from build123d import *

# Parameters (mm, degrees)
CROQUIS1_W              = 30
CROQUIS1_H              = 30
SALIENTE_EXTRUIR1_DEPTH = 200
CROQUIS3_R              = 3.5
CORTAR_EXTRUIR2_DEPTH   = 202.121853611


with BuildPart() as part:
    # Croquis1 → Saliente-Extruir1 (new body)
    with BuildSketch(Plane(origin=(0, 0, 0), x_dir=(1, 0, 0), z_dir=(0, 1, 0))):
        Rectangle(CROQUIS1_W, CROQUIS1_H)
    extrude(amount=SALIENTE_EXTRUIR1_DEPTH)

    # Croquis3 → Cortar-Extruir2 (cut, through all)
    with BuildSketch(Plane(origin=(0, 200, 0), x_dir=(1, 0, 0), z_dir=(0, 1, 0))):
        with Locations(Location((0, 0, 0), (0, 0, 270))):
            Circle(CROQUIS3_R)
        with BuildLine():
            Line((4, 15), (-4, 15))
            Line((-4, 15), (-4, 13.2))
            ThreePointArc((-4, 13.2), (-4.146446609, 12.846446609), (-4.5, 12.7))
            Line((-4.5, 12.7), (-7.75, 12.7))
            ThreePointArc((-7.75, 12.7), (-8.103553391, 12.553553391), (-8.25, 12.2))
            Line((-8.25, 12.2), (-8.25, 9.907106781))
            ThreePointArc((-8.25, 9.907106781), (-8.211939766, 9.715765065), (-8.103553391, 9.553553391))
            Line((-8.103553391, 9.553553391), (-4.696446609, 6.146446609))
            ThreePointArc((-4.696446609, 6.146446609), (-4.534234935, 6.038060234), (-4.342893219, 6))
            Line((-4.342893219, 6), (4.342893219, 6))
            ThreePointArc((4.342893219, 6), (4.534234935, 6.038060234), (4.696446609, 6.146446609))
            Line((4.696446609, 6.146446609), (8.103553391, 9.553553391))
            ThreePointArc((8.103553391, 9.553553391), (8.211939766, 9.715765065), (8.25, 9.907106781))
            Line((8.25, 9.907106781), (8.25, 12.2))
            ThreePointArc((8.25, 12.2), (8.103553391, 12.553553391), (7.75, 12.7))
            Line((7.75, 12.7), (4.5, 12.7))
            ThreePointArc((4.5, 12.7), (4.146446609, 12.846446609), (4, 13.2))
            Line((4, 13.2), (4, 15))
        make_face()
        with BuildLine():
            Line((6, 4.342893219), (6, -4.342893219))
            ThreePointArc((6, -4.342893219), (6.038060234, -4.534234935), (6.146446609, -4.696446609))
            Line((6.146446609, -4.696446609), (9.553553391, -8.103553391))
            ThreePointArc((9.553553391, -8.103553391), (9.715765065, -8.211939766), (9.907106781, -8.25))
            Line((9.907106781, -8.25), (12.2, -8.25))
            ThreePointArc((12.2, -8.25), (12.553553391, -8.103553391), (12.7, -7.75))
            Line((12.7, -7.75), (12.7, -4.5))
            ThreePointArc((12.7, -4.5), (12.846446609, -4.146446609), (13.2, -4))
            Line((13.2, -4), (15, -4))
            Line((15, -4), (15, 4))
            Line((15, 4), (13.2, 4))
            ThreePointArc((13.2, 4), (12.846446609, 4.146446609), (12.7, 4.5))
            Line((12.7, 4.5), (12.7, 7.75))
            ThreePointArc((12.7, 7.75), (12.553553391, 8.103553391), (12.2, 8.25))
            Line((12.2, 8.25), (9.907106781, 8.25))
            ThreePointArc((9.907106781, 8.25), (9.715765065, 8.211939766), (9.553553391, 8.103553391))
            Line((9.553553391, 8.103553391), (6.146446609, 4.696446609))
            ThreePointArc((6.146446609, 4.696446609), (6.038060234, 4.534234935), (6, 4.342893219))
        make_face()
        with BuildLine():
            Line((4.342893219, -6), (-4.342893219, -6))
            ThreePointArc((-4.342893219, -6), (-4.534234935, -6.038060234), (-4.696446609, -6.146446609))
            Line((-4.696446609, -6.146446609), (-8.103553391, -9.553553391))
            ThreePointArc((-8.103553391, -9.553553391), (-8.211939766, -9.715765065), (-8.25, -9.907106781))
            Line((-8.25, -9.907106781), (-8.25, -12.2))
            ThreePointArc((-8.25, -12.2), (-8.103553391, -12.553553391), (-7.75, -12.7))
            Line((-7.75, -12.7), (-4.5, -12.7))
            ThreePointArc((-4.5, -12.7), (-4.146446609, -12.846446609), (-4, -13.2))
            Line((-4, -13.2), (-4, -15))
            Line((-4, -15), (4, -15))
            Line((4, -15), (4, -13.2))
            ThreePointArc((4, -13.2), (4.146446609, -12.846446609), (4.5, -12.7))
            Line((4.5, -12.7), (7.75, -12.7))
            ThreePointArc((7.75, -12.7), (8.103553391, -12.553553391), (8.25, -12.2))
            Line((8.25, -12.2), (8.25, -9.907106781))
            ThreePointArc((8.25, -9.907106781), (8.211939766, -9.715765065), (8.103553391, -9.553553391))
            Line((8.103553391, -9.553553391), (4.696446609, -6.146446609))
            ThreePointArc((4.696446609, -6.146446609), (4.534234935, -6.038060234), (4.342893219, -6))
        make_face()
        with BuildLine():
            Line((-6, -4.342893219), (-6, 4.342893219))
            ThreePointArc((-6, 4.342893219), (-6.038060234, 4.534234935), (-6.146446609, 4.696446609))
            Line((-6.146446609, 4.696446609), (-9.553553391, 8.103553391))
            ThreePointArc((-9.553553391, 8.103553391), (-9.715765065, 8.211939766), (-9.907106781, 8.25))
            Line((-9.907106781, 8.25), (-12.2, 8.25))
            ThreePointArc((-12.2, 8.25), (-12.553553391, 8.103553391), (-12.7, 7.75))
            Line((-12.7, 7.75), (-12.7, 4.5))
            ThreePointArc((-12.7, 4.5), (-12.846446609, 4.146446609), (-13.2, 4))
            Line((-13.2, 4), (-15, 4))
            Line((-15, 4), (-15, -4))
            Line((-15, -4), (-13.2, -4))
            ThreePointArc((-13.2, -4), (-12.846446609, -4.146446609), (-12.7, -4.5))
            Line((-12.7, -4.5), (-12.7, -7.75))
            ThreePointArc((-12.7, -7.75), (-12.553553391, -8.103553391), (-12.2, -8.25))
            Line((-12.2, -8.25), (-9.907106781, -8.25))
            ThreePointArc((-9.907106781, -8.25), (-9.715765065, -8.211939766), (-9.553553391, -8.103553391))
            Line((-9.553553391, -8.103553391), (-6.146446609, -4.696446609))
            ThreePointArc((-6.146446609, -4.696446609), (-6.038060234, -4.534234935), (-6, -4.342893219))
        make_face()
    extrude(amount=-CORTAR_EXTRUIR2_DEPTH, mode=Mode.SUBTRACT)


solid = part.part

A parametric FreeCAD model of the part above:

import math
import FreeCAD as App
import Part
import Sketcher

V = App.Vector


def add_polygon(sketch, points):
    """Adds a closed chain of lines whose ends are joined by coincident constraints."""
    first, n = sketch.GeometryCount, len(points)
    for a, b in zip(points, points[1:] + points[:1]):
        sketch.addGeometry(Part.LineSegment(App.Vector(*a, 0), App.Vector(*b, 0)), False)
    for i in range(n):
        sketch.addConstraint(Sketcher.Constraint("Coincident", first + i, 2, first + (i + 1) % n, 1))

doc = App.newDocument("Part")
body = doc.addObject("PartDesign::Body", "Body")

# Sketch on XZ plane
sketch1 = body.newObject("Sketcher::SketchObject", "Sketch")
sketch1.AttachmentSupport = (doc.getObject("XZ_Plane"), [""])
sketch1.MapMode = "FlatFace"
add_polygon(sketch1, [(-15, -15), (-15, 15), (15, 15), (15, -15)])  # lines 0-3
sketch1.addConstraint(Sketcher.Constraint("Vertical", 0))
sketch1.addConstraint(Sketcher.Constraint("Horizontal", 1))
sketch1.addConstraint(Sketcher.Constraint("Vertical", 2))
sketch1.addConstraint(Sketcher.Constraint("Horizontal", 3))
sketch1.addConstraint(Sketcher.Constraint("Symmetric", 0, 2, 2, 2, -1, 1))
sketch1.addConstraint(Sketcher.Constraint("Equal", 3, 0))
sketch1.addConstraint(Sketcher.Constraint("DistanceX", 1, 1, 1, 2, 30.0))
pad1 = body.newObject("PartDesign::Pad", "Pad")
pad1.Profile = sketch1
pad1.Length = 200
pad1.Reversed = True

# Sketch on XZ plane
sketch2 = body.newObject("Sketcher::SketchObject", "Sketch001")
sketch2.AttachmentSupport = (doc.getObject("XZ_Plane"), [""])
sketch2.MapMode = "FlatFace"
sketch2.AttachmentOffset = App.Placement(V(0, 0, -200), App.Rotation())
sketch2.addGeometry(Part.Circle(V(0, 0, 0), V(0, 0, 1), 3.5), False)
sketch2.addGeometry(Part.LineSegment(V(4, -15, 0), V(-4, -15, 0)), False)
sketch2.addGeometry(Part.LineSegment(V(-4, -15, 0), V(-4, -13.2, 0)), False)
sketch2.addGeometry(Part.ArcOfCircle(Part.Circle(V(-4.5, -13.2, 0), V(0, 0, 1), 0.5), math.radians(0), math.radians(90)), False)
sketch2.addGeometry(Part.LineSegment(V(-4.5, -12.7, 0), V(-7.75, -12.7, 0)), False)
sketch2.addGeometry(Part.ArcOfCircle(Part.Circle(V(-7.75, -12.2, 0), V(0, 0, 1), 0.5), math.radians(180), math.radians(270)), False)
sketch2.addGeometry(Part.LineSegment(V(-8.25, -12.2, 0), V(-8.25, -9.91, 0)), False)
sketch2.addGeometry(Part.ArcOfCircle(Part.Circle(V(-7.75, -9.91, 0), V(0, 0, 1), 0.5), math.radians(135), math.radians(180)), False)
sketch2.addGeometry(Part.LineSegment(V(-8.1, -9.55, 0), V(-4.7, -6.15, 0)), False)
sketch2.addGeometry(Part.ArcOfCircle(Part.Circle(V(-4.34, -6.5, 0), V(0, 0, 1), 0.5), math.radians(90), math.radians(135)), False)
sketch2.addGeometry(Part.LineSegment(V(-4.34, -6, 0), V(4.34, -6, 0)), False)
sketch2.addGeometry(Part.ArcOfCircle(Part.Circle(V(4.34, -6.5, 0), V(0, 0, 1), 0.5), math.radians(45), math.radians(90)), False)
sketch2.addGeometry(Part.LineSegment(V(4.7, -6.15, 0), V(8.1, -9.55, 0)), False)
sketch2.addGeometry(Part.ArcOfCircle(Part.Circle(V(7.75, -9.91, 0), V(0, 0, 1), 0.5), math.radians(0), math.radians(45)), False)
sketch2.addGeometry(Part.LineSegment(V(8.25, -9.91, 0), V(8.25, -12.2, 0)), False)
sketch2.addGeometry(Part.ArcOfCircle(Part.Circle(V(7.75, -12.2, 0), V(0, 0, 1), 0.5), math.radians(-90), math.radians(0)), False)
sketch2.addGeometry(Part.LineSegment(V(7.75, -12.7, 0), V(4.5, -12.7, 0)), False)
sketch2.addGeometry(Part.ArcOfCircle(Part.Circle(V(4.5, -13.2, 0), V(0, 0, 1), 0.5), math.radians(90), math.radians(180)), False)
sketch2.addGeometry(Part.LineSegment(V(4, -13.2, 0), V(4, -15, 0)), False)
sketch2.addGeometry(Part.LineSegment(V(6, -4.34, 0), V(6, 4.34, 0)), False)
sketch2.addGeometry(Part.ArcOfCircle(Part.Circle(V(6.5, 4.34, 0), V(0, 0, 1), 0.5), math.radians(135), math.radians(180)), False)
sketch2.addGeometry(Part.LineSegment(V(6.15, 4.7, 0), V(9.55, 8.1, 0)), False)
sketch2.addGeometry(Part.ArcOfCircle(Part.Circle(V(9.91, 7.75, 0), V(0, 0, 1), 0.5), math.radians(90), math.radians(135)), False)
sketch2.addGeometry(Part.LineSegment(V(9.91, 8.25, 0), V(12.2, 8.25, 0)), False)
sketch2.addGeometry(Part.ArcOfCircle(Part.Circle(V(12.2, 7.75, 0), V(0, 0, 1), 0.5), math.radians(0), math.radians(90)), False)
sketch2.addGeometry(Part.LineSegment(V(12.7, 7.75, 0), V(12.7, 4.5, 0)), False)
sketch2.addGeometry(Part.ArcOfCircle(Part.Circle(V(13.2, 4.5, 0), V(0, 0, 1), 0.5), math.radians(180), math.radians(270)), False)
sketch2.addGeometry(Part.LineSegment(V(13.2, 4, 0), V(15, 4, 0)), False)
sketch2.addGeometry(Part.LineSegment(V(15, 4, 0), V(15, -4, 0)), False)
sketch2.addGeometry(Part.LineSegment(V(15, -4, 0), V(13.2, -4, 0)), False)
sketch2.addGeometry(Part.ArcOfCircle(Part.Circle(V(13.2, -4.5, 0), V(0, 0, 1), 0.5), math.radians(90), math.radians(180)), False)
sketch2.addGeometry(Part.LineSegment(V(12.7, -4.5, 0), V(12.7, -7.75, 0)), False)
sketch2.addGeometry(Part.ArcOfCircle(Part.Circle(V(12.2, -7.75, 0), V(0, 0, 1), 0.5), math.radians(-90), math.radians(0)), False)
sketch2.addGeometry(Part.LineSegment(V(12.2, -8.25, 0), V(9.91, -8.25, 0)), False)
sketch2.addGeometry(Part.ArcOfCircle(Part.Circle(V(9.91, -7.75, 0), V(0, 0, 1), 0.5), math.radians(-135), math.radians(-90)), False)
sketch2.addGeometry(Part.LineSegment(V(9.55, -8.1, 0), V(6.15, -4.7, 0)), False)
sketch2.addGeometry(Part.ArcOfCircle(Part.Circle(V(6.5, -4.34, 0), V(0, 0, 1), 0.5), math.radians(-180), math.radians(-135)), False)
sketch2.addGeometry(Part.LineSegment(V(4.34, 6, 0), V(-4.34, 6, 0)), False)
sketch2.addGeometry(Part.ArcOfCircle(Part.Circle(V(-4.34, 6.5, 0), V(0, 0, 1), 0.5), math.radians(-135), math.radians(-90)), False)
sketch2.addGeometry(Part.LineSegment(V(-4.7, 6.15, 0), V(-8.1, 9.55, 0)), False)
sketch2.addGeometry(Part.ArcOfCircle(Part.Circle(V(-7.75, 9.91, 0), V(0, 0, 1), 0.5), math.radians(-180), math.radians(-135)), False)
sketch2.addGeometry(Part.LineSegment(V(-8.25, 9.91, 0), V(-8.25, 12.2, 0)), False)
sketch2.addGeometry(Part.ArcOfCircle(Part.Circle(V(-7.75, 12.2, 0), V(0, 0, 1), 0.5), math.radians(90), math.radians(180)), False)
sketch2.addGeometry(Part.LineSegment(V(-7.75, 12.7, 0), V(-4.5, 12.7, 0)), False)
sketch2.addGeometry(Part.ArcOfCircle(Part.Circle(V(-4.5, 13.2, 0), V(0, 0, 1), 0.5), math.radians(-90), math.radians(0)), False)
sketch2.addGeometry(Part.LineSegment(V(-4, 13.2, 0), V(-4, 15, 0)), False)
sketch2.addGeometry(Part.LineSegment(V(-4, 15, 0), V(4, 15, 0)), False)
sketch2.addGeometry(Part.LineSegment(V(4, 15, 0), V(4, 13.2, 0)), False)
sketch2.addGeometry(Part.ArcOfCircle(Part.Circle(V(4.5, 13.2, 0), V(0, 0, 1), 0.5), math.radians(180), math.radians(270)), False)
sketch2.addGeometry(Part.LineSegment(V(4.5, 12.7, 0), V(7.75, 12.7, 0)), False)
sketch2.addGeometry(Part.ArcOfCircle(Part.Circle(V(7.75, 12.2, 0), V(0, 0, 1), 0.5), math.radians(0), math.radians(90)), False)
sketch2.addGeometry(Part.LineSegment(V(8.25, 12.2, 0), V(8.25, 9.91, 0)), False)
sketch2.addGeometry(Part.ArcOfCircle(Part.Circle(V(7.75, 9.91, 0), V(0, 0, 1), 0.5), math.radians(-45), math.radians(0)), False)
sketch2.addGeometry(Part.LineSegment(V(8.1, 9.55, 0), V(4.7, 6.15, 0)), False)
sketch2.addGeometry(Part.ArcOfCircle(Part.Circle(V(4.34, 6.5, 0), V(0, 0, 1), 0.5), math.radians(-90), math.radians(-45)), False)
sketch2.addGeometry(Part.LineSegment(V(-6, 4.34, 0), V(-6, -4.34, 0)), False)
sketch2.addGeometry(Part.ArcOfCircle(Part.Circle(V(-6.5, -4.34, 0), V(0, 0, 1), 0.5), math.radians(-45), math.radians(0)), False)
sketch2.addGeometry(Part.LineSegment(V(-6.15, -4.7, 0), V(-9.55, -8.1, 0)), False)
sketch2.addGeometry(Part.ArcOfCircle(Part.Circle(V(-9.91, -7.75, 0), V(0, 0, 1), 0.5), math.radians(-90), math.radians(-45)), False)
sketch2.addGeometry(Part.LineSegment(V(-9.91, -8.25, 0), V(-12.2, -8.25, 0)), False)
sketch2.addGeometry(Part.ArcOfCircle(Part.Circle(V(-12.2, -7.75, 0), V(0, 0, 1), 0.5), math.radians(180), math.radians(270)), False)
sketch2.addGeometry(Part.LineSegment(V(-12.7, -7.75, 0), V(-12.7, -4.5, 0)), False)
sketch2.addGeometry(Part.ArcOfCircle(Part.Circle(V(-13.2, -4.5, 0), V(0, 0, 1), 0.5), math.radians(0), math.radians(90)), False)
sketch2.addGeometry(Part.LineSegment(V(-13.2, -4, 0), V(-15, -4, 0)), False)
sketch2.addGeometry(Part.LineSegment(V(-15, -4, 0), V(-15, 4, 0)), False)
sketch2.addGeometry(Part.LineSegment(V(-15, 4, 0), V(-13.2, 4, 0)), False)
sketch2.addGeometry(Part.ArcOfCircle(Part.Circle(V(-13.2, 4.5, 0), V(0, 0, 1), 0.5), math.radians(-90), math.radians(0)), False)
sketch2.addGeometry(Part.LineSegment(V(-12.7, 4.5, 0), V(-12.7, 7.75, 0)), False)
sketch2.addGeometry(Part.ArcOfCircle(Part.Circle(V(-12.2, 7.75, 0), V(0, 0, 1), 0.5), math.radians(90), math.radians(180)), False)
sketch2.addGeometry(Part.LineSegment(V(-12.2, 8.25, 0), V(-9.91, 8.25, 0)), False)
sketch2.addGeometry(Part.ArcOfCircle(Part.Circle(V(-9.91, 7.75, 0), V(0, 0, 1), 0.5), math.radians(45), math.radians(90)), False)
sketch2.addGeometry(Part.LineSegment(V(-9.55, 8.1, 0), V(-6.15, 4.7, 0)), False)
sketch2.addGeometry(Part.ArcOfCircle(Part.Circle(V(-6.5, 4.34, 0), V(0, 0, 1), 0.5), math.radians(0), math.radians(45)), False)
sketch2.addConstraint(Sketcher.Constraint("Coincident", 1, 2, 2, 1))
sketch2.addConstraint(Sketcher.Constraint("Tangent", 2, 2, 3, 1))
sketch2.addConstraint(Sketcher.Constraint("Tangent", 3, 2, 4, 1))
sketch2.addConstraint(Sketcher.Constraint("Tangent", 4, 2, 5, 2))
sketch2.addConstraint(Sketcher.Constraint("Tangent", 5, 1, 6, 1))
sketch2.addConstraint(Sketcher.Constraint("Tangent", 6, 2, 7, 2))
sketch2.addConstraint(Sketcher.Constraint("Tangent", 7, 1, 8, 1))
sketch2.addConstraint(Sketcher.Constraint("Tangent", 8, 2, 9, 2))
sketch2.addConstraint(Sketcher.Constraint("Tangent", 9, 1, 10, 1))
sketch2.addConstraint(Sketcher.Constraint("Tangent", 10, 2, 11, 2))
sketch2.addConstraint(Sketcher.Constraint("Tangent", 11, 1, 12, 1))
sketch2.addConstraint(Sketcher.Constraint("Tangent", 12, 2, 13, 2))
sketch2.addConstraint(Sketcher.Constraint("Tangent", 13, 1, 14, 1))
sketch2.addConstraint(Sketcher.Constraint("Tangent", 14, 2, 15, 2))
sketch2.addConstraint(Sketcher.Constraint("Tangent", 15, 1, 16, 1))
sketch2.addConstraint(Sketcher.Constraint("Tangent", 16, 2, 17, 1))
sketch2.addConstraint(Sketcher.Constraint("Tangent", 17, 2, 18, 1))
sketch2.addConstraint(Sketcher.Constraint("Coincident", 18, 2, 1, 1))
sketch2.addConstraint(Sketcher.Constraint("Tangent", 19, 2, 20, 2))
sketch2.addConstraint(Sketcher.Constraint("Tangent", 20, 1, 21, 1))
sketch2.addConstraint(Sketcher.Constraint("Tangent", 21, 2, 22, 2))
sketch2.addConstraint(Sketcher.Constraint("Tangent", 22, 1, 23, 1))
sketch2.addConstraint(Sketcher.Constraint("Tangent", 23, 2, 24, 2))
sketch2.addConstraint(Sketcher.Constraint("Tangent", 24, 1, 25, 1))
sketch2.addConstraint(Sketcher.Constraint("Tangent", 25, 2, 26, 1))
sketch2.addConstraint(Sketcher.Constraint("Tangent", 26, 2, 27, 1))
sketch2.addConstraint(Sketcher.Constraint("Coincident", 27, 2, 28, 1))
sketch2.addConstraint(Sketcher.Constraint("Coincident", 28, 2, 29, 1))
sketch2.addConstraint(Sketcher.Constraint("Tangent", 29, 2, 30, 1))
sketch2.addConstraint(Sketcher.Constraint("Tangent", 30, 2, 31, 1))
sketch2.addConstraint(Sketcher.Constraint("Tangent", 31, 2, 32, 2))
sketch2.addConstraint(Sketcher.Constraint("Tangent", 32, 1, 33, 1))
sketch2.addConstraint(Sketcher.Constraint("Tangent", 33, 2, 34, 2))
sketch2.addConstraint(Sketcher.Constraint("Tangent", 34, 1, 35, 1))
sketch2.addConstraint(Sketcher.Constraint("Tangent", 35, 2, 36, 2))
sketch2.addConstraint(Sketcher.Constraint("Tangent", 36, 1, 19, 1))
sketch2.addConstraint(Sketcher.Constraint("Tangent", 37, 2, 38, 2))
sketch2.addConstraint(Sketcher.Constraint("Tangent", 38, 1, 39, 1))
sketch2.addConstraint(Sketcher.Constraint("Tangent", 39, 2, 40, 2))
sketch2.addConstraint(Sketcher.Constraint("Tangent", 40, 1, 41, 1))
sketch2.addConstraint(Sketcher.Constraint("Tangent", 41, 2, 42, 2))
sketch2.addConstraint(Sketcher.Constraint("Tangent", 42, 1, 43, 1))
sketch2.addConstraint(Sketcher.Constraint("Tangent", 43, 2, 44, 1))
sketch2.addConstraint(Sketcher.Constraint("Tangent", 44, 2, 45, 1))
sketch2.addConstraint(Sketcher.Constraint("Coincident", 45, 2, 46, 1))
sketch2.addConstraint(Sketcher.Constraint("Coincident", 46, 2, 47, 1))
sketch2.addConstraint(Sketcher.Constraint("Tangent", 47, 2, 48, 1))
sketch2.addConstraint(Sketcher.Constraint("Tangent", 48, 2, 49, 1))
sketch2.addConstraint(Sketcher.Constraint("Tangent", 49, 2, 50, 2))
sketch2.addConstraint(Sketcher.Constraint("Tangent", 50, 1, 51, 1))
sketch2.addConstraint(Sketcher.Constraint("Tangent", 51, 2, 52, 2))
sketch2.addConstraint(Sketcher.Constraint("Tangent", 52, 1, 53, 1))
sketch2.addConstraint(Sketcher.Constraint("Tangent", 53, 2, 54, 2))
sketch2.addConstraint(Sketcher.Constraint("Tangent", 54, 1, 37, 1))
sketch2.addConstraint(Sketcher.Constraint("Tangent", 55, 2, 56, 2))
sketch2.addConstraint(Sketcher.Constraint("Tangent", 56, 1, 57, 1))
sketch2.addConstraint(Sketcher.Constraint("Tangent", 57, 2, 58, 2))
sketch2.addConstraint(Sketcher.Constraint("Tangent", 58, 1, 59, 1))
sketch2.addConstraint(Sketcher.Constraint("Tangent", 59, 2, 60, 2))
sketch2.addConstraint(Sketcher.Constraint("Tangent", 60, 1, 61, 1))
sketch2.addConstraint(Sketcher.Constraint("Tangent", 61, 2, 62, 1))
sketch2.addConstraint(Sketcher.Constraint("Tangent", 62, 2, 63, 1))
sketch2.addConstraint(Sketcher.Constraint("Coincident", 63, 2, 64, 1))
sketch2.addConstraint(Sketcher.Constraint("Coincident", 64, 2, 65, 1))
sketch2.addConstraint(Sketcher.Constraint("Tangent", 65, 2, 66, 1))
sketch2.addConstraint(Sketcher.Constraint("Tangent", 66, 2, 67, 1))
sketch2.addConstraint(Sketcher.Constraint("Tangent", 67, 2, 68, 2))
sketch2.addConstraint(Sketcher.Constraint("Tangent", 68, 1, 69, 1))
sketch2.addConstraint(Sketcher.Constraint("Tangent", 69, 2, 70, 2))
sketch2.addConstraint(Sketcher.Constraint("Tangent", 70, 1, 71, 1))
sketch2.addConstraint(Sketcher.Constraint("Tangent", 71, 2, 72, 2))
sketch2.addConstraint(Sketcher.Constraint("Tangent", 72, 1, 55, 1))
sketch2.addConstraint(Sketcher.Constraint("Horizontal", 1))
sketch2.addConstraint(Sketcher.Constraint("Vertical", 2))
sketch2.addConstraint(Sketcher.Constraint("Horizontal", 4))
sketch2.addConstraint(Sketcher.Constraint("Vertical", 6))
sketch2.addConstraint(Sketcher.Constraint("Horizontal", 10))
sketch2.addConstraint(Sketcher.Constraint("Vertical", 14))
sketch2.addConstraint(Sketcher.Constraint("Horizontal", 16))
sketch2.addConstraint(Sketcher.Constraint("Vertical", 18))
sketch2.addConstraint(Sketcher.Constraint("Vertical", 19))
sketch2.addConstraint(Sketcher.Constraint("Horizontal", 23))
sketch2.addConstraint(Sketcher.Constraint("Vertical", 25))
sketch2.addConstraint(Sketcher.Constraint("Horizontal", 27))
sketch2.addConstraint(Sketcher.Constraint("Vertical", 28))
sketch2.addConstraint(Sketcher.Constraint("Horizontal", 29))
sketch2.addConstraint(Sketcher.Constraint("Vertical", 31))
sketch2.addConstraint(Sketcher.Constraint("Horizontal", 33))
sketch2.addConstraint(Sketcher.Constraint("Horizontal", 37))
sketch2.addConstraint(Sketcher.Constraint("Vertical", 41))
sketch2.addConstraint(Sketcher.Constraint("Horizontal", 43))
sketch2.addConstraint(Sketcher.Constraint("Vertical", 45))
sketch2.addConstraint(Sketcher.Constraint("Horizontal", 46))
sketch2.addConstraint(Sketcher.Constraint("Vertical", 47))
sketch2.addConstraint(Sketcher.Constraint("Horizontal", 49))
sketch2.addConstraint(Sketcher.Constraint("Vertical", 51))
sketch2.addConstraint(Sketcher.Constraint("Vertical", 55))
sketch2.addConstraint(Sketcher.Constraint("Horizontal", 59))
sketch2.addConstraint(Sketcher.Constraint("Vertical", 61))
sketch2.addConstraint(Sketcher.Constraint("Horizontal", 63))
sketch2.addConstraint(Sketcher.Constraint("Vertical", 64))
sketch2.addConstraint(Sketcher.Constraint("Horizontal", 65))
sketch2.addConstraint(Sketcher.Constraint("Vertical", 67))
sketch2.addConstraint(Sketcher.Constraint("Horizontal", 69))
sketch2.addConstraint(Sketcher.Constraint("Coincident", 0, 3, -1, 1))
sketch2.addConstraint(Sketcher.Constraint("Equal", 3, 5))
sketch2.addConstraint(Sketcher.Constraint("Equal", 5, 7))
sketch2.addConstraint(Sketcher.Constraint("Equal", 7, 9))
sketch2.addConstraint(Sketcher.Constraint("Equal", 9, 11))
sketch2.addConstraint(Sketcher.Constraint("Equal", 11, 13))
sketch2.addConstraint(Sketcher.Constraint("Equal", 13, 15))
sketch2.addConstraint(Sketcher.Constraint("Equal", 15, 17))
sketch2.addConstraint(Sketcher.Constraint("Equal", 17, 20))
sketch2.addConstraint(Sketcher.Constraint("Equal", 20, 22))
sketch2.addConstraint(Sketcher.Constraint("Equal", 22, 24))
sketch2.addConstraint(Sketcher.Constraint("Equal", 24, 26))
sketch2.addConstraint(Sketcher.Constraint("Equal", 26, 30))
sketch2.addConstraint(Sketcher.Constraint("Equal", 30, 32))
sketch2.addConstraint(Sketcher.Constraint("Equal", 32, 34))
sketch2.addConstraint(Sketcher.Constraint("Equal", 34, 36))
sketch2.addConstraint(Sketcher.Constraint("Equal", 36, 38))
sketch2.addConstraint(Sketcher.Constraint("Equal", 38, 40))
sketch2.addConstraint(Sketcher.Constraint("Equal", 40, 42))
sketch2.addConstraint(Sketcher.Constraint("Equal", 42, 44))
sketch2.addConstraint(Sketcher.Constraint("Equal", 44, 48))
sketch2.addConstraint(Sketcher.Constraint("Equal", 48, 50))
sketch2.addConstraint(Sketcher.Constraint("Equal", 50, 52))
sketch2.addConstraint(Sketcher.Constraint("Equal", 52, 54))
sketch2.addConstraint(Sketcher.Constraint("Equal", 54, 56))
sketch2.addConstraint(Sketcher.Constraint("Equal", 56, 58))
sketch2.addConstraint(Sketcher.Constraint("Equal", 58, 60))
sketch2.addConstraint(Sketcher.Constraint("Equal", 60, 62))
sketch2.addConstraint(Sketcher.Constraint("Equal", 62, 66))
sketch2.addConstraint(Sketcher.Constraint("Equal", 66, 68))
sketch2.addConstraint(Sketcher.Constraint("Equal", 68, 70))
sketch2.addConstraint(Sketcher.Constraint("Equal", 70, 72))
sketch2.addConstraint(Sketcher.Constraint("Symmetric", 11, 3, 38, 3, -1, 1))
sketch2.addConstraint(Sketcher.Constraint("Symmetric", 13, 3, 40, 3, -1, 1))
sketch2.addConstraint(Sketcher.Constraint("Symmetric", 17, 3, 44, 3, -1, 1))
sketch2.addConstraint(Sketcher.Constraint("Symmetric", 3, 3, 48, 3, -1, 1))
sketch2.addConstraint(Sketcher.Constraint("Symmetric", 7, 3, 52, 3, -1, 1))
sketch2.addConstraint(Sketcher.Constraint("Symmetric", 20, 3, 56, 3, -1, 1))
sketch2.addConstraint(Sketcher.Constraint("Symmetric", 22, 3, 58, 3, -1, 1))
sketch2.addConstraint(Sketcher.Constraint("Symmetric", 26, 3, 62, 3, -1, 1))
sketch2.addConstraint(Sketcher.Constraint("Symmetric", 30, 3, 66, 3, -1, 1))
sketch2.addConstraint(Sketcher.Constraint("Symmetric", 34, 3, 70, 3, -1, 1))
sketch2.addConstraint(Sketcher.Constraint("Symmetric", 7, 3, 13, 3, -2))
sketch2.addConstraint(Sketcher.Constraint("Symmetric", 3, 3, 17, 3, -2))
sketch2.addConstraint(Sketcher.Constraint("Symmetric", 34, 3, 58, 3, -2))
sketch2.addConstraint(Sketcher.Constraint("Symmetric", 30, 3, 62, 3, -2))
sketch2.addConstraint(Sketcher.Constraint("Perpendicular", 8, 12))
sketch2.addConstraint(Sketcher.Constraint("Perpendicular", 12, 21))
sketch2.addConstraint(Sketcher.Constraint("Perpendicular", 21, 35))
sketch2.addConstraint(Sketcher.Constraint("Perpendicular", 39, 53))
sketch2.addConstraint(Sketcher.Constraint("Perpendicular", 57, 71))
sketch2.addConstraint(Sketcher.Constraint("Horizontal", 36, 3, 56, 3))
sketch2.addConstraint(Sketcher.Constraint("Equal", 29, 63))
sketch2.addConstraint(Sketcher.Constraint("Equal", 65, 2))
sketch2.addConstraint(Sketcher.Constraint("Equal", 69, 6))
sketch2.addConstraint(Sketcher.Constraint("Equal", 37, 19))
sketch2.addConstraint(Sketcher.Constraint("Equal", 49, 25))
sketch2.addConstraint(Sketcher.Constraint("Equal", 46, 28))
sketch2.addConstraint(Sketcher.Constraint("Equal", 18, 45))
sketch2.addConstraint(Sketcher.Constraint("Diameter", 0, 7.0))
sketch2.addConstraint(Sketcher.Constraint("Radius", 3, 0.5))
sketch2.addConstraint(Sketcher.Constraint("DistanceX", 1, 2, 1, 1, 8.0))
sketch2.addConstraint(Sketcher.Constraint("DistanceX", 27, 1, 27, 2, 1.8))
sketch2.addConstraint(Sketcher.Constraint("DistanceY", 1, 2, -1, 1, 15.0))
sketch2.addConstraint(Sketcher.Constraint("DistanceY", 9, 1, -1, 1, 6.0))
sketch2.addConstraint(Sketcher.Constraint("DistanceX", -1, 1, 19, 2, 6.0))
sketch2.addConstraint(Sketcher.Constraint("DistanceX", 4, 2, 4, 1, 3.25))
sketch2.addConstraint(Sketcher.Constraint("DistanceX", 10, 1, 10, 2, 8.685786))
pocket1 = body.newObject("PartDesign::Pocket", "Pocket")
pocket1.Profile = sketch2
pocket1.Type = "ThroughAll"
pocket1.Reversed = True

doc.recompute()
